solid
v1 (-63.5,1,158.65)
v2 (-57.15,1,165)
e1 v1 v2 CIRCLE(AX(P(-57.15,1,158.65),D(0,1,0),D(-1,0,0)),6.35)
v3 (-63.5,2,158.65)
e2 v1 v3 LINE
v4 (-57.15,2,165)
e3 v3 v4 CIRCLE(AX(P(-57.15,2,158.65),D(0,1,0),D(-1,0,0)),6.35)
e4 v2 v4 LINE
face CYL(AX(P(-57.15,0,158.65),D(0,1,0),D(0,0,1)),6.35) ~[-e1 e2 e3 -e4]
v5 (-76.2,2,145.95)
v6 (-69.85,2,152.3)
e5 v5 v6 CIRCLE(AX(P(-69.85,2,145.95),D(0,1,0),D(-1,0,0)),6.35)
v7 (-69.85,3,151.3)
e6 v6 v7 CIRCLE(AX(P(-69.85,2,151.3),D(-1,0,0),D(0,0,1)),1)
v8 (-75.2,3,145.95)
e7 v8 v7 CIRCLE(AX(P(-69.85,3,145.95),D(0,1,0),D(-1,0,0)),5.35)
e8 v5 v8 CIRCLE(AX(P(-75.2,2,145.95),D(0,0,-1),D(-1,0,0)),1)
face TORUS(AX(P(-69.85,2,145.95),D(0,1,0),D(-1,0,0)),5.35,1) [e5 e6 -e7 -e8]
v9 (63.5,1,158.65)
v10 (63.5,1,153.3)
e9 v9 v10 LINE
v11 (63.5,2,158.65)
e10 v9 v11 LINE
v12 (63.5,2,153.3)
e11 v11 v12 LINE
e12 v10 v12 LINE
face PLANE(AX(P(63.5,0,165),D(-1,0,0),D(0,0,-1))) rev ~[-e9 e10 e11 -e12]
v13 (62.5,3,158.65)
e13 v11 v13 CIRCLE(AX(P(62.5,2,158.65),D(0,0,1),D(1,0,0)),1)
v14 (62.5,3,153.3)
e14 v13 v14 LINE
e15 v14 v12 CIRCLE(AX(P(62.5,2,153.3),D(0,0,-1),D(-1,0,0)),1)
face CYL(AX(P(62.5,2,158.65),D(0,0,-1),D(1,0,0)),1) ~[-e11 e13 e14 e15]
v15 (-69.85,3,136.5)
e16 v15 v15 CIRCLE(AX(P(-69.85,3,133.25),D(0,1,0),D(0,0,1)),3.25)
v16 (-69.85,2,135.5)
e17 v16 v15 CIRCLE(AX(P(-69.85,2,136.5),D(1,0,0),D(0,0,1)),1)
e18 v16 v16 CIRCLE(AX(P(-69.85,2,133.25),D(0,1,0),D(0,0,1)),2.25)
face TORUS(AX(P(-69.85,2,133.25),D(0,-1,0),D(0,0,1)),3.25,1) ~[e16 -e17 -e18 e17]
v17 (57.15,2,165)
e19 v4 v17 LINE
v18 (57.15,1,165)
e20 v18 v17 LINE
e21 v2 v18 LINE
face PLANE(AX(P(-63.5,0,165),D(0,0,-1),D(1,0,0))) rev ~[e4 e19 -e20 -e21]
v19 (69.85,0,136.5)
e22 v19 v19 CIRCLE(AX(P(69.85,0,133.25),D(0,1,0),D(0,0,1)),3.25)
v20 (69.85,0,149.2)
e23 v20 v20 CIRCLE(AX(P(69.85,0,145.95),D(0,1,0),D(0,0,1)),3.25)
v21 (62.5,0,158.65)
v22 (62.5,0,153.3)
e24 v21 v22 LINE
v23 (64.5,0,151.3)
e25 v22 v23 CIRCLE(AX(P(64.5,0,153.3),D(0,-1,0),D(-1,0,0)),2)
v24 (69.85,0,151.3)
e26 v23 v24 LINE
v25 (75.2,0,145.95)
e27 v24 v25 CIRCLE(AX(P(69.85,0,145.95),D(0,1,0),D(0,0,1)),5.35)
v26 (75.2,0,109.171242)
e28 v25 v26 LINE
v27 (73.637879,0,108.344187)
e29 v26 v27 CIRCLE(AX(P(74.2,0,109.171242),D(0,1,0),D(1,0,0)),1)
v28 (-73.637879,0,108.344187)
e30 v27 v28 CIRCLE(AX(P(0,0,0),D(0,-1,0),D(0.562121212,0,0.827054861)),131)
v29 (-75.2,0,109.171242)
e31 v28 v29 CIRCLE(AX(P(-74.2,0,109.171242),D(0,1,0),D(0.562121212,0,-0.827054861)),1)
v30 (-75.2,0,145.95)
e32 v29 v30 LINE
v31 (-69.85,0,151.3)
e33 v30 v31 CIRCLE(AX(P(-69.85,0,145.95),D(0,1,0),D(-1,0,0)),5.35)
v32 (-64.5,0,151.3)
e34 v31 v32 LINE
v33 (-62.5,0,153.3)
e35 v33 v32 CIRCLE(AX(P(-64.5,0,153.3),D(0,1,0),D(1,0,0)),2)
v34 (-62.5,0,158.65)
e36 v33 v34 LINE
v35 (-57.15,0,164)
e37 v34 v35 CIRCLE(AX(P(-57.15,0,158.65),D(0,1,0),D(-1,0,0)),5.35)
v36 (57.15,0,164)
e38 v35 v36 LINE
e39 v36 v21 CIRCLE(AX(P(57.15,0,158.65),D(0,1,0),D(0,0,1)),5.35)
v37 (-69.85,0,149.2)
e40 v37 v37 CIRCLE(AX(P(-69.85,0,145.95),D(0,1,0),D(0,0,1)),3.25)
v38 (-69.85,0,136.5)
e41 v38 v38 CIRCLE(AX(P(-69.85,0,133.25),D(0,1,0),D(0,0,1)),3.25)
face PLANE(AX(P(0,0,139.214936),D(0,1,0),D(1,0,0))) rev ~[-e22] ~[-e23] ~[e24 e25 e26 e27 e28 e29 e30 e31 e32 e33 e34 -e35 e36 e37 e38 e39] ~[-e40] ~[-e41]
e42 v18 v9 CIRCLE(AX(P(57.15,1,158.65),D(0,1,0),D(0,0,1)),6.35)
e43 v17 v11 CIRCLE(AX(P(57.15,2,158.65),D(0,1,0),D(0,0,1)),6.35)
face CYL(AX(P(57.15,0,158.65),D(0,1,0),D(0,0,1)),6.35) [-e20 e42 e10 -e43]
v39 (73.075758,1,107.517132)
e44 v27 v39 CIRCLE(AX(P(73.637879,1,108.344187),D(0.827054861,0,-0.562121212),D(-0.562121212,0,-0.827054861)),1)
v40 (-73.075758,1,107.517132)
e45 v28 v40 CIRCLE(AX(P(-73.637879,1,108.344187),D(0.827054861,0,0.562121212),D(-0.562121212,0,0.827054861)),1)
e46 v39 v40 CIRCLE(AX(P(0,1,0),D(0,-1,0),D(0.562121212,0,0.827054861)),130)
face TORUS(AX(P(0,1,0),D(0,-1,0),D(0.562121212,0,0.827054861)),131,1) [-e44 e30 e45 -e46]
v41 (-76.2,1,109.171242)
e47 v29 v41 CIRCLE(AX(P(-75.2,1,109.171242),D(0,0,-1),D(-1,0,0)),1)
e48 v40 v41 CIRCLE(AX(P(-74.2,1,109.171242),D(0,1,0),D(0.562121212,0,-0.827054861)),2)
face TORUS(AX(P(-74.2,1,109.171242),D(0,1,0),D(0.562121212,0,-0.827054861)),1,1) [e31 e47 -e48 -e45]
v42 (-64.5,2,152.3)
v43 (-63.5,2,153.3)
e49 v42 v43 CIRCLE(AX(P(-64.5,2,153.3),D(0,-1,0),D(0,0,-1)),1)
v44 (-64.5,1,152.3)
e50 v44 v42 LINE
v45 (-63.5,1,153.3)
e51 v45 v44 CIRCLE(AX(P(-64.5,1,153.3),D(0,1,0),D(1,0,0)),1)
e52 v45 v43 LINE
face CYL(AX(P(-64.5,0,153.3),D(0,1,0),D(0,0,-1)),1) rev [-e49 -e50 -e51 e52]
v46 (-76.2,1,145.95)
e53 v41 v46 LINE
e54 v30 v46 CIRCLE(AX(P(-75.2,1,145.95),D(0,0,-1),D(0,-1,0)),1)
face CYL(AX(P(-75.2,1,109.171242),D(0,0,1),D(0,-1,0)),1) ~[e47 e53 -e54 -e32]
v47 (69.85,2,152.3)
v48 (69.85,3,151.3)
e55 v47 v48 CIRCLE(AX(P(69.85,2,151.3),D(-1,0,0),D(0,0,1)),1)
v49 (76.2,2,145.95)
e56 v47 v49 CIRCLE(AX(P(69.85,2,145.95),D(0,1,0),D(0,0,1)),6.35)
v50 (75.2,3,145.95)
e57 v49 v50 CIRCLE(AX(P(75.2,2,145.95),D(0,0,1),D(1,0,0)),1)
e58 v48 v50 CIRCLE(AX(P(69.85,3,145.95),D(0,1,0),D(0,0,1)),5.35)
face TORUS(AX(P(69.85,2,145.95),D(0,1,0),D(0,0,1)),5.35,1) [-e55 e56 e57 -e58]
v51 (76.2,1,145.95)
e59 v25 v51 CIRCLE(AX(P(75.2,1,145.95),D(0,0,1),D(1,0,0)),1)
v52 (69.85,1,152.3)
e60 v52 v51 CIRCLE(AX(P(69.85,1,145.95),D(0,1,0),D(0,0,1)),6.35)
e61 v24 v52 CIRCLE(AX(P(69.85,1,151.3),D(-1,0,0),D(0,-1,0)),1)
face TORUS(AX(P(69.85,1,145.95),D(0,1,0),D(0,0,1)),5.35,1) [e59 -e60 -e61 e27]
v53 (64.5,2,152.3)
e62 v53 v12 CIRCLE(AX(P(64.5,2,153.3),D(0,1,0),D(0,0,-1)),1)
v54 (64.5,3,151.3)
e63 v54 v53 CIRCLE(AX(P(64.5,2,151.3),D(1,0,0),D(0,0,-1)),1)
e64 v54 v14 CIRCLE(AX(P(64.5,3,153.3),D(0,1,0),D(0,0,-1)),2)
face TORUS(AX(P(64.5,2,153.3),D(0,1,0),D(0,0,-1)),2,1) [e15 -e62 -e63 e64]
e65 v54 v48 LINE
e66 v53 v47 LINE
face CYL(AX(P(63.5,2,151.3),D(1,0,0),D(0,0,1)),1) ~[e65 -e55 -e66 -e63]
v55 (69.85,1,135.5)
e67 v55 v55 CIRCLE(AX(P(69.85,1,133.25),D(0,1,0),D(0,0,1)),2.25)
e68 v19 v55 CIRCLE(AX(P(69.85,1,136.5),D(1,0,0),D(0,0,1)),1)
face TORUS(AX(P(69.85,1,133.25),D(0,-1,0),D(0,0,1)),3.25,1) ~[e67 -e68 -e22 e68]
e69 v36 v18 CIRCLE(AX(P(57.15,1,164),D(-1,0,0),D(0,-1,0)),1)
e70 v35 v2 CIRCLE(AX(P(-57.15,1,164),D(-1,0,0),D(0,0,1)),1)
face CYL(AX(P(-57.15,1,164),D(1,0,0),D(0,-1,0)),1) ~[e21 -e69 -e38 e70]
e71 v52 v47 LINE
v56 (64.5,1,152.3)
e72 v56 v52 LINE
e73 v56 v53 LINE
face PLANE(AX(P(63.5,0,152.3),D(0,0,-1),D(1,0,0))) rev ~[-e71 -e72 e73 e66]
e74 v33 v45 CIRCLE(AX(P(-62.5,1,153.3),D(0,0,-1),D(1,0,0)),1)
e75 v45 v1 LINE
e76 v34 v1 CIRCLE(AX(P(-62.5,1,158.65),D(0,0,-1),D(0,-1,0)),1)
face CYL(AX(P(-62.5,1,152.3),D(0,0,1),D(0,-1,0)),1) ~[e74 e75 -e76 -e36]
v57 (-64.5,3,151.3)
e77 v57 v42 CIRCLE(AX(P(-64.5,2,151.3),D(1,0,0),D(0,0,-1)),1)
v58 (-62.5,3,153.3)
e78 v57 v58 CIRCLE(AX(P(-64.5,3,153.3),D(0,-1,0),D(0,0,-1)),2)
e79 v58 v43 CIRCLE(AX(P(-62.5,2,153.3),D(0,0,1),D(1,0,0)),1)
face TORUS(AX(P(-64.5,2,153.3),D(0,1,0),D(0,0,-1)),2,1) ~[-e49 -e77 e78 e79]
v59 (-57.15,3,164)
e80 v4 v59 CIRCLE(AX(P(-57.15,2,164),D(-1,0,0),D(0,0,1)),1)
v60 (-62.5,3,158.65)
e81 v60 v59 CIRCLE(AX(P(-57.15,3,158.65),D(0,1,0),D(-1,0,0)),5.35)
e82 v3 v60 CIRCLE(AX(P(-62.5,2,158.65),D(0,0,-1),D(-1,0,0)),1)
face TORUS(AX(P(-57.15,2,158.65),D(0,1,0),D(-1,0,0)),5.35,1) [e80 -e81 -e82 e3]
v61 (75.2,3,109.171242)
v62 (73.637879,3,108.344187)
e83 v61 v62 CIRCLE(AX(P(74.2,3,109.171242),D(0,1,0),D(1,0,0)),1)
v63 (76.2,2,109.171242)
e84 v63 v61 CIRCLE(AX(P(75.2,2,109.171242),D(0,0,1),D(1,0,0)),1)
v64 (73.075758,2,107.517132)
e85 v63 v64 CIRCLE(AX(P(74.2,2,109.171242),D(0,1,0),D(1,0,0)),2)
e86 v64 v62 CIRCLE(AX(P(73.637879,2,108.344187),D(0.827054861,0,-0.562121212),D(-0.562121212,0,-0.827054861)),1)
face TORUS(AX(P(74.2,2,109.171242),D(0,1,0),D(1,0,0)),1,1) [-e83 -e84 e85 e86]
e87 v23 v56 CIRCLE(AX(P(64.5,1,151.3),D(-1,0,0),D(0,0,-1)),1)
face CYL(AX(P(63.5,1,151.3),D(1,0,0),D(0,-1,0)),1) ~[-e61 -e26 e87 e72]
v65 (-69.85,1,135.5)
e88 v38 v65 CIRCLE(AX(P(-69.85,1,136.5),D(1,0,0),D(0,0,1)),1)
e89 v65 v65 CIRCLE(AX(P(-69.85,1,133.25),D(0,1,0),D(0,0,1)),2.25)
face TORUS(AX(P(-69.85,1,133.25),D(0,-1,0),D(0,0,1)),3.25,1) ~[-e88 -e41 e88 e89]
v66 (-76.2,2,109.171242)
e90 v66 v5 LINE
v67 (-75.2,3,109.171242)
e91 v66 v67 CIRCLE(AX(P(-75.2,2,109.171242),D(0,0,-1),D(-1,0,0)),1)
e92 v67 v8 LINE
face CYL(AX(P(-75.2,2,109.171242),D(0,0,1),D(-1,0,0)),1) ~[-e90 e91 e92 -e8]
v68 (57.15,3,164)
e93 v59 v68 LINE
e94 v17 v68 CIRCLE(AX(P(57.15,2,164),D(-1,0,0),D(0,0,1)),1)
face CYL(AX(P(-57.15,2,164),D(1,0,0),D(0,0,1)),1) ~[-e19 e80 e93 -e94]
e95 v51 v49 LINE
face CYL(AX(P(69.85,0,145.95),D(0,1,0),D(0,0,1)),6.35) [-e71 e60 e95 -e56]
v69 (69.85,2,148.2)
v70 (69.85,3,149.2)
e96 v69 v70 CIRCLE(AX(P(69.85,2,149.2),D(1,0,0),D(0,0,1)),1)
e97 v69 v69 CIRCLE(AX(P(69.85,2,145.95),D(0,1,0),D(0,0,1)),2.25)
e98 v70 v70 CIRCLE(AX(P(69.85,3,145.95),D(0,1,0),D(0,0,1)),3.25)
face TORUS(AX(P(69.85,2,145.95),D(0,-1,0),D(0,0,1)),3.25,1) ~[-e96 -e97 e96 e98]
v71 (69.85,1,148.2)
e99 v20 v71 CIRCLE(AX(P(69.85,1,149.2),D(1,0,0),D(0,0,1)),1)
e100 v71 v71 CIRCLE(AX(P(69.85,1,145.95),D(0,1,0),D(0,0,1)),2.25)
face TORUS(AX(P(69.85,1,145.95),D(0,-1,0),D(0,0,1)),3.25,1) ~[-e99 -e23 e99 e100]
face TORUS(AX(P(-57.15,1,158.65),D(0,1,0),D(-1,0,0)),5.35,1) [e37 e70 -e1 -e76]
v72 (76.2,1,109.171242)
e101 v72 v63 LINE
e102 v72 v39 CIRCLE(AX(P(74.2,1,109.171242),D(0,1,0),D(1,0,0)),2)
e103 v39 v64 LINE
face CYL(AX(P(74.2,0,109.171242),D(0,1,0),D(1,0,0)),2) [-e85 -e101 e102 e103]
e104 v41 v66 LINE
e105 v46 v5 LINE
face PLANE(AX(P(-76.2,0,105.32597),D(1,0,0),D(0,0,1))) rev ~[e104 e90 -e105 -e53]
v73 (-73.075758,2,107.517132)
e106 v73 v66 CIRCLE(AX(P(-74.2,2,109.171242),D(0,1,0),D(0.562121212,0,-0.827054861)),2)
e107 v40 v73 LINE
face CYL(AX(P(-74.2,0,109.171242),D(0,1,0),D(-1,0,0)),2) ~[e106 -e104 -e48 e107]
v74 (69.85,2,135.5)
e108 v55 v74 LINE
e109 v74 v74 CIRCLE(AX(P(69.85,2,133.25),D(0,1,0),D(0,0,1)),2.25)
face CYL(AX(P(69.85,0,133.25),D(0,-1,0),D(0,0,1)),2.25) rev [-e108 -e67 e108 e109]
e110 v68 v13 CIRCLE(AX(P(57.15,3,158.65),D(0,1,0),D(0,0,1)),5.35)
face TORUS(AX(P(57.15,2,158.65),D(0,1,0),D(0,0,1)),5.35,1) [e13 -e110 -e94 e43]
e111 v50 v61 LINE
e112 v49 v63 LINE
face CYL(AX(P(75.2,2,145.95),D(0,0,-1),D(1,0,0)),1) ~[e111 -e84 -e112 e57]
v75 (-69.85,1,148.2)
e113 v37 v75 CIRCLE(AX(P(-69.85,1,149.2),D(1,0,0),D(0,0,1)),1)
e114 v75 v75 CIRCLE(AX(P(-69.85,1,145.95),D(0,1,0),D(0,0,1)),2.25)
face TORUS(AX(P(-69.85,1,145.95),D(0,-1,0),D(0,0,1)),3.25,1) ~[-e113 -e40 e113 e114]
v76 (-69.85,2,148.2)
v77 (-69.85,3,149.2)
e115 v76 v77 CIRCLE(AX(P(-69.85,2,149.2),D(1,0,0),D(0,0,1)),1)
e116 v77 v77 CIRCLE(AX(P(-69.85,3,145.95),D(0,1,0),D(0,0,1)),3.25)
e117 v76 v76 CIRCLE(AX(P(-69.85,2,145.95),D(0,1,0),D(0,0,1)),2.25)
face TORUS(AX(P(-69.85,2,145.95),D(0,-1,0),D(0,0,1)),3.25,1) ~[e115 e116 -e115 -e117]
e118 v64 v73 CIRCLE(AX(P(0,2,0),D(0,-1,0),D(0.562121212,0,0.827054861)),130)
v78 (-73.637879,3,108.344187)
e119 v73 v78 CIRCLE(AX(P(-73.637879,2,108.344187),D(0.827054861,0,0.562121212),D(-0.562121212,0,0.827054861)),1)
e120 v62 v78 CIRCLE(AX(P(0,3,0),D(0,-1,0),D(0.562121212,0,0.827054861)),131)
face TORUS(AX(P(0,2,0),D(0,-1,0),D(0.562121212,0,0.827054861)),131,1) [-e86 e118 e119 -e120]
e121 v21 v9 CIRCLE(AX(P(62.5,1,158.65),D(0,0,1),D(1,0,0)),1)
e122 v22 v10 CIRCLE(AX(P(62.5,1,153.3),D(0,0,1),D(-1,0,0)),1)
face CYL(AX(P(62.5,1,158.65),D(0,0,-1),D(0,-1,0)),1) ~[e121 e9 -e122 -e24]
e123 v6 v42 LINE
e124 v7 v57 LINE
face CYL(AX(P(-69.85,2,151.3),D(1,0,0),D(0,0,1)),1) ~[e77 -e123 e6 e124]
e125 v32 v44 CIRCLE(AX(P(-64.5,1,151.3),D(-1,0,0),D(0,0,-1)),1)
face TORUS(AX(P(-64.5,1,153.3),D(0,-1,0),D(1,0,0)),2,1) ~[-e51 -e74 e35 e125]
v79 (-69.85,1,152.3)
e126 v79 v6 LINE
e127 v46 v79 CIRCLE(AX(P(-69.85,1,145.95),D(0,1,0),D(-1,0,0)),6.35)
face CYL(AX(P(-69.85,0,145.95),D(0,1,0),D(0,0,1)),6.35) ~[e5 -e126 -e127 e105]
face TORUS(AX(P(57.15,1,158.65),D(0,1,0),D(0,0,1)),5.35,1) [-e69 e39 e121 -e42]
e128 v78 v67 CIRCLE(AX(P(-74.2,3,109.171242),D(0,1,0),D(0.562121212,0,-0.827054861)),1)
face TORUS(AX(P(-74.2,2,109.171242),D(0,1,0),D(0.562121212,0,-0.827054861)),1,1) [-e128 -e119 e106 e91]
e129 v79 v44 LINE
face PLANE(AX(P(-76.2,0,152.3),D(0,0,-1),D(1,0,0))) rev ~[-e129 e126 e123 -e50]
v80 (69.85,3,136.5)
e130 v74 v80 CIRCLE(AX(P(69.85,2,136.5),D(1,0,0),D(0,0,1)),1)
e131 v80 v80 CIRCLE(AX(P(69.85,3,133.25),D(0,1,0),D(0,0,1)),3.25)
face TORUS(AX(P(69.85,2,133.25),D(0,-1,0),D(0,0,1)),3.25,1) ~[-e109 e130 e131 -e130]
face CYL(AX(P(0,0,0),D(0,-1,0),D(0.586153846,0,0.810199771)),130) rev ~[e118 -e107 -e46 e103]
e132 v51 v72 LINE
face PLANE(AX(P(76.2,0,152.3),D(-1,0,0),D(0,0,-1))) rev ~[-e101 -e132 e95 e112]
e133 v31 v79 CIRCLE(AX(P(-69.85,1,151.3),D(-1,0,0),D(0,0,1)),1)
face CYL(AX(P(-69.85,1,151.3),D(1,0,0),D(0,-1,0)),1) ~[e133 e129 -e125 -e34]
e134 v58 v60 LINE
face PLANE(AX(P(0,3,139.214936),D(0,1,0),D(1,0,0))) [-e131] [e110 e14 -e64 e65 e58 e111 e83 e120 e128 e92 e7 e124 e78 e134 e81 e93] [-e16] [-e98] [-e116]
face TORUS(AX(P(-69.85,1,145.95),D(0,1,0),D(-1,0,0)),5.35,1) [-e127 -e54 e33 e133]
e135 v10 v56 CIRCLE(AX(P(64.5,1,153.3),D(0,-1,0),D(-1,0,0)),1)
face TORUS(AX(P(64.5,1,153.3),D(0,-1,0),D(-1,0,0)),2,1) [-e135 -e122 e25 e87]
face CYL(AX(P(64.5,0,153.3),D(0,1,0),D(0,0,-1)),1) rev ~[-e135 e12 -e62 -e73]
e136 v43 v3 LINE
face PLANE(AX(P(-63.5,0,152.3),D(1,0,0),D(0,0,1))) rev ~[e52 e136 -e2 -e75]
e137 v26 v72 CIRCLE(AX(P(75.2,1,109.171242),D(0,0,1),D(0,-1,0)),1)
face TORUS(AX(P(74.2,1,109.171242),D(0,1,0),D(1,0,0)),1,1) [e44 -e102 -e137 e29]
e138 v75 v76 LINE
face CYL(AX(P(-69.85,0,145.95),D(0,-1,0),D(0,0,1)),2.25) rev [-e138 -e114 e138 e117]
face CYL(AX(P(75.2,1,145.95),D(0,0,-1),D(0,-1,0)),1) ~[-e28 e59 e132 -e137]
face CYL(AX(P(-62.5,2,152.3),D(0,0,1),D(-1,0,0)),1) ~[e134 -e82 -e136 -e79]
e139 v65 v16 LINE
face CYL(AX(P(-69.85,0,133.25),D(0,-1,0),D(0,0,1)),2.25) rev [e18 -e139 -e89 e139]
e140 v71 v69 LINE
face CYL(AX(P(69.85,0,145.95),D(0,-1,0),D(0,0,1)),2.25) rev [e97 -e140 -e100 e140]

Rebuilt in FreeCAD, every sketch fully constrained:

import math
import FreeCAD as App
import Part
import Sketcher

V = App.Vector


def edges_at(feature, points):
    """Names of the edges that pass closest to the given points."""
    edges = feature.Shape.Edges
    near = lambda p: min(range(len(edges)), key=lambda i: edges[i].distToShape(Part.Vertex(*p))[0])
    return sorted({f"Edge{near(p) + 1}" for p in points})

doc = App.newDocument("Part")
body = doc.addObject("PartDesign::Body", "Body")

sketch1 = body.newObject("Sketcher::SketchObject", "Sketch")
sketch1.AttachmentSupport = (doc.getObject("XZ_Plane"), [""])
sketch1.MapMode = "FlatFace"
sketch1.addGeometry([
    Part.LineSegment(V(-63.5, 165, 0), V(63.5, 165, 0)),
    Part.LineSegment(V(63.5, 165, 0), V(63.5, 152.3, 0)),
    Part.LineSegment(V(63.5, 152.3, 0), V(76.2, 152.3, 0)),
    Part.LineSegment(V(76.2, 152.3, 0), V(76.2, 105.3, 0)),
    Part.ArcOfCircle(Part.Circle(V(0, 0, 0), V(0, 0, 1), 130), math.radians(54), math.radians(126)),
    Part.LineSegment(V(-76.2, 105.3, 0), V(-76.2, 152.3, 0)),
    Part.LineSegment(V(-76.2, 152.3, 0), V(-63.5, 152.3, 0)),
    Part.LineSegment(V(-63.5, 152.3, 0), V(-63.5, 165, 0)),
    Part.Circle(V(-69.8, 145.9, 0), V(0, 0, 1), 2.2),
    Part.Circle(V(69.8, 145.9, 0), V(0, 0, 1), 2.2),
    Part.Circle(V(-69.8, 133.2, 0), V(0, 0, 1), 2.2),
    Part.Circle(V(69.8, 133.2, 0), V(0, 0, 1), 2.2),
], False)
sketch1.addConstraint([
    Sketcher.Constraint("Coincident", 0, 2, 1, 1),
    Sketcher.Constraint("Coincident", 1, 2, 2, 1),
    Sketcher.Constraint("Coincident", 2, 2, 3, 1),
    Sketcher.Constraint("Coincident", 3, 2, 4, 1),
    Sketcher.Constraint("Coincident", 4, 2, 5, 1),
    Sketcher.Constraint("Coincident", 5, 2, 6, 1),
    Sketcher.Constraint("Coincident", 6, 2, 7, 1),
    Sketcher.Constraint("Coincident", 7, 2, 0, 1),
    Sketcher.Constraint("Horizontal", 0),
    Sketcher.Constraint("Vertical", 1),
    Sketcher.Constraint("Horizontal", 2),
    Sketcher.Constraint("Vertical", 3),
    Sketcher.Constraint("Vertical", 5),
    Sketcher.Constraint("Horizontal", 6),
    Sketcher.Constraint("Vertical", 7),
    Sketcher.Constraint("Coincident", 4, 3, -1, 1),
    Sketcher.Constraint("Equal", 8, 9),
    Sketcher.Constraint("Equal", 9, 10),
    Sketcher.Constraint("Equal", 10, 11),
    Sketcher.Constraint("Symmetric", 8, 3, 9, 3, -2),
    Sketcher.Constraint("Symmetric", 10, 3, 11, 3, -2),
    Sketcher.Constraint("Symmetric", 2, 2, 5, 2, -2),
    Sketcher.Constraint("Vertical", 8, 3, 10, 3),
    Sketcher.Constraint("Equal", 2, 6),
    Sketcher.Constraint("Equal", 6, 1),
    Sketcher.Constraint("Radius", 4, 130.0),
    Sketcher.Constraint("Diameter", 8, 4.5),
    Sketcher.Constraint("DistanceX", 0, 1, 0, 2, 127.0),
    Sketcher.Constraint("DistanceX", 2, 1, 2, 2, 12.7),
    Sketcher.Constraint("DistanceY", -1, 1, 0, 2, 165.0),
    Sketcher.Constraint("DistanceX", 8, 3, 9, 3, 139.7),
    Sketcher.Constraint("DistanceY", 10, 3, 8, 3, 12.7),
    Sketcher.Constraint("DistanceY", -1, 1, 8, 3, 145.95),
])
pad1 = body.newObject("PartDesign::Pad", "Pad")
pad1.Profile = sketch1
pad1.Length = 3
pad1.Reversed = True
doc.recompute()

fillet = body.newObject("PartDesign::Fillet", "Fillet")
fillet.Base = (pad1, edges_at(pad1, [
    (76.2, 1.5, 152.3),
    (63.5, 1.5, 165),
    (-63.5, 1.5, 165),
    (-76.2, 1.5, 152.3),
]))
fillet.Radius = 6.35
doc.recompute()

fillet2 = body.newObject("PartDesign::Fillet", "Fillet001")
fillet2.Base = (fillet, edges_at(fillet, [(76.2, 1.5, 105.326), (-76.2, 1.5, 105.326)]))
fillet2.Radius = 2
doc.recompute()

fillet3 = body.newObject("PartDesign::Fillet", "Fillet002")
fillet3.Base = (fillet2, ["Edge1"])
fillet3.UseAllEdges = True
fillet3.Radius = 1

doc.recompute()
